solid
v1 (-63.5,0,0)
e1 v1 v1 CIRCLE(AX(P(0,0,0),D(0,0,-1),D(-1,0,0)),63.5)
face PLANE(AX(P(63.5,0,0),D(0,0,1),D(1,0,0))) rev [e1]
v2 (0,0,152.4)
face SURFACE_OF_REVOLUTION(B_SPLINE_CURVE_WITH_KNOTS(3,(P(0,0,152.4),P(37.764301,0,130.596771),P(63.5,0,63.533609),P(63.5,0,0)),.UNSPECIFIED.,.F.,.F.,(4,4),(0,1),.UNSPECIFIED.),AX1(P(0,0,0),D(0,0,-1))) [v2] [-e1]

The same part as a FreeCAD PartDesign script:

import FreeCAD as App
import Part
import Sketcher

V = App.Vector

doc = App.newDocument("Part")
body = doc.addObject("PartDesign::Body", "Body")

sketch1 = body.newObject("Sketcher::SketchObject", "Sketch")
sketch1.AttachmentSupport = (doc.getObject("XZ_Plane"), [""])
sketch1.MapMode = "FlatFace"
sketch1.addGeometry([
    Part.LineSegment(V(63.5, 0, 0), V(0, 0, 0)),
    Part.LineSegment(V(0, 0, 0), V(0, 152.4, 0)),
    Part.BSplineCurve([V(63.5, 0, 0), V(63.5, 63.533609, 0), V(37.764301, 130.596771, 0), V(0, 152.4, 0)], [4, 4], [0, 1], False, 3, [1, 1, 1, 1], False),
], False)
sketch1.addConstraint([
    Sketcher.Constraint("Block", 2),
    Sketcher.Constraint("Coincident", 0, 2, 1, 1),
    Sketcher.Constraint("Coincident", 1, 2, 2, 2),
    Sketcher.Constraint("Coincident", 2, 1, 0, 1),
    Sketcher.Constraint("Horizontal", 0),
    Sketcher.Constraint("Vertical", 1),
])
revolution = body.newObject("PartDesign::Revolution", "Revolution")
revolution.Profile = sketch1
revolution.ReferenceAxis = (sketch1, ["V_Axis"])
revolution.Angle = 360

doc.recompute()
